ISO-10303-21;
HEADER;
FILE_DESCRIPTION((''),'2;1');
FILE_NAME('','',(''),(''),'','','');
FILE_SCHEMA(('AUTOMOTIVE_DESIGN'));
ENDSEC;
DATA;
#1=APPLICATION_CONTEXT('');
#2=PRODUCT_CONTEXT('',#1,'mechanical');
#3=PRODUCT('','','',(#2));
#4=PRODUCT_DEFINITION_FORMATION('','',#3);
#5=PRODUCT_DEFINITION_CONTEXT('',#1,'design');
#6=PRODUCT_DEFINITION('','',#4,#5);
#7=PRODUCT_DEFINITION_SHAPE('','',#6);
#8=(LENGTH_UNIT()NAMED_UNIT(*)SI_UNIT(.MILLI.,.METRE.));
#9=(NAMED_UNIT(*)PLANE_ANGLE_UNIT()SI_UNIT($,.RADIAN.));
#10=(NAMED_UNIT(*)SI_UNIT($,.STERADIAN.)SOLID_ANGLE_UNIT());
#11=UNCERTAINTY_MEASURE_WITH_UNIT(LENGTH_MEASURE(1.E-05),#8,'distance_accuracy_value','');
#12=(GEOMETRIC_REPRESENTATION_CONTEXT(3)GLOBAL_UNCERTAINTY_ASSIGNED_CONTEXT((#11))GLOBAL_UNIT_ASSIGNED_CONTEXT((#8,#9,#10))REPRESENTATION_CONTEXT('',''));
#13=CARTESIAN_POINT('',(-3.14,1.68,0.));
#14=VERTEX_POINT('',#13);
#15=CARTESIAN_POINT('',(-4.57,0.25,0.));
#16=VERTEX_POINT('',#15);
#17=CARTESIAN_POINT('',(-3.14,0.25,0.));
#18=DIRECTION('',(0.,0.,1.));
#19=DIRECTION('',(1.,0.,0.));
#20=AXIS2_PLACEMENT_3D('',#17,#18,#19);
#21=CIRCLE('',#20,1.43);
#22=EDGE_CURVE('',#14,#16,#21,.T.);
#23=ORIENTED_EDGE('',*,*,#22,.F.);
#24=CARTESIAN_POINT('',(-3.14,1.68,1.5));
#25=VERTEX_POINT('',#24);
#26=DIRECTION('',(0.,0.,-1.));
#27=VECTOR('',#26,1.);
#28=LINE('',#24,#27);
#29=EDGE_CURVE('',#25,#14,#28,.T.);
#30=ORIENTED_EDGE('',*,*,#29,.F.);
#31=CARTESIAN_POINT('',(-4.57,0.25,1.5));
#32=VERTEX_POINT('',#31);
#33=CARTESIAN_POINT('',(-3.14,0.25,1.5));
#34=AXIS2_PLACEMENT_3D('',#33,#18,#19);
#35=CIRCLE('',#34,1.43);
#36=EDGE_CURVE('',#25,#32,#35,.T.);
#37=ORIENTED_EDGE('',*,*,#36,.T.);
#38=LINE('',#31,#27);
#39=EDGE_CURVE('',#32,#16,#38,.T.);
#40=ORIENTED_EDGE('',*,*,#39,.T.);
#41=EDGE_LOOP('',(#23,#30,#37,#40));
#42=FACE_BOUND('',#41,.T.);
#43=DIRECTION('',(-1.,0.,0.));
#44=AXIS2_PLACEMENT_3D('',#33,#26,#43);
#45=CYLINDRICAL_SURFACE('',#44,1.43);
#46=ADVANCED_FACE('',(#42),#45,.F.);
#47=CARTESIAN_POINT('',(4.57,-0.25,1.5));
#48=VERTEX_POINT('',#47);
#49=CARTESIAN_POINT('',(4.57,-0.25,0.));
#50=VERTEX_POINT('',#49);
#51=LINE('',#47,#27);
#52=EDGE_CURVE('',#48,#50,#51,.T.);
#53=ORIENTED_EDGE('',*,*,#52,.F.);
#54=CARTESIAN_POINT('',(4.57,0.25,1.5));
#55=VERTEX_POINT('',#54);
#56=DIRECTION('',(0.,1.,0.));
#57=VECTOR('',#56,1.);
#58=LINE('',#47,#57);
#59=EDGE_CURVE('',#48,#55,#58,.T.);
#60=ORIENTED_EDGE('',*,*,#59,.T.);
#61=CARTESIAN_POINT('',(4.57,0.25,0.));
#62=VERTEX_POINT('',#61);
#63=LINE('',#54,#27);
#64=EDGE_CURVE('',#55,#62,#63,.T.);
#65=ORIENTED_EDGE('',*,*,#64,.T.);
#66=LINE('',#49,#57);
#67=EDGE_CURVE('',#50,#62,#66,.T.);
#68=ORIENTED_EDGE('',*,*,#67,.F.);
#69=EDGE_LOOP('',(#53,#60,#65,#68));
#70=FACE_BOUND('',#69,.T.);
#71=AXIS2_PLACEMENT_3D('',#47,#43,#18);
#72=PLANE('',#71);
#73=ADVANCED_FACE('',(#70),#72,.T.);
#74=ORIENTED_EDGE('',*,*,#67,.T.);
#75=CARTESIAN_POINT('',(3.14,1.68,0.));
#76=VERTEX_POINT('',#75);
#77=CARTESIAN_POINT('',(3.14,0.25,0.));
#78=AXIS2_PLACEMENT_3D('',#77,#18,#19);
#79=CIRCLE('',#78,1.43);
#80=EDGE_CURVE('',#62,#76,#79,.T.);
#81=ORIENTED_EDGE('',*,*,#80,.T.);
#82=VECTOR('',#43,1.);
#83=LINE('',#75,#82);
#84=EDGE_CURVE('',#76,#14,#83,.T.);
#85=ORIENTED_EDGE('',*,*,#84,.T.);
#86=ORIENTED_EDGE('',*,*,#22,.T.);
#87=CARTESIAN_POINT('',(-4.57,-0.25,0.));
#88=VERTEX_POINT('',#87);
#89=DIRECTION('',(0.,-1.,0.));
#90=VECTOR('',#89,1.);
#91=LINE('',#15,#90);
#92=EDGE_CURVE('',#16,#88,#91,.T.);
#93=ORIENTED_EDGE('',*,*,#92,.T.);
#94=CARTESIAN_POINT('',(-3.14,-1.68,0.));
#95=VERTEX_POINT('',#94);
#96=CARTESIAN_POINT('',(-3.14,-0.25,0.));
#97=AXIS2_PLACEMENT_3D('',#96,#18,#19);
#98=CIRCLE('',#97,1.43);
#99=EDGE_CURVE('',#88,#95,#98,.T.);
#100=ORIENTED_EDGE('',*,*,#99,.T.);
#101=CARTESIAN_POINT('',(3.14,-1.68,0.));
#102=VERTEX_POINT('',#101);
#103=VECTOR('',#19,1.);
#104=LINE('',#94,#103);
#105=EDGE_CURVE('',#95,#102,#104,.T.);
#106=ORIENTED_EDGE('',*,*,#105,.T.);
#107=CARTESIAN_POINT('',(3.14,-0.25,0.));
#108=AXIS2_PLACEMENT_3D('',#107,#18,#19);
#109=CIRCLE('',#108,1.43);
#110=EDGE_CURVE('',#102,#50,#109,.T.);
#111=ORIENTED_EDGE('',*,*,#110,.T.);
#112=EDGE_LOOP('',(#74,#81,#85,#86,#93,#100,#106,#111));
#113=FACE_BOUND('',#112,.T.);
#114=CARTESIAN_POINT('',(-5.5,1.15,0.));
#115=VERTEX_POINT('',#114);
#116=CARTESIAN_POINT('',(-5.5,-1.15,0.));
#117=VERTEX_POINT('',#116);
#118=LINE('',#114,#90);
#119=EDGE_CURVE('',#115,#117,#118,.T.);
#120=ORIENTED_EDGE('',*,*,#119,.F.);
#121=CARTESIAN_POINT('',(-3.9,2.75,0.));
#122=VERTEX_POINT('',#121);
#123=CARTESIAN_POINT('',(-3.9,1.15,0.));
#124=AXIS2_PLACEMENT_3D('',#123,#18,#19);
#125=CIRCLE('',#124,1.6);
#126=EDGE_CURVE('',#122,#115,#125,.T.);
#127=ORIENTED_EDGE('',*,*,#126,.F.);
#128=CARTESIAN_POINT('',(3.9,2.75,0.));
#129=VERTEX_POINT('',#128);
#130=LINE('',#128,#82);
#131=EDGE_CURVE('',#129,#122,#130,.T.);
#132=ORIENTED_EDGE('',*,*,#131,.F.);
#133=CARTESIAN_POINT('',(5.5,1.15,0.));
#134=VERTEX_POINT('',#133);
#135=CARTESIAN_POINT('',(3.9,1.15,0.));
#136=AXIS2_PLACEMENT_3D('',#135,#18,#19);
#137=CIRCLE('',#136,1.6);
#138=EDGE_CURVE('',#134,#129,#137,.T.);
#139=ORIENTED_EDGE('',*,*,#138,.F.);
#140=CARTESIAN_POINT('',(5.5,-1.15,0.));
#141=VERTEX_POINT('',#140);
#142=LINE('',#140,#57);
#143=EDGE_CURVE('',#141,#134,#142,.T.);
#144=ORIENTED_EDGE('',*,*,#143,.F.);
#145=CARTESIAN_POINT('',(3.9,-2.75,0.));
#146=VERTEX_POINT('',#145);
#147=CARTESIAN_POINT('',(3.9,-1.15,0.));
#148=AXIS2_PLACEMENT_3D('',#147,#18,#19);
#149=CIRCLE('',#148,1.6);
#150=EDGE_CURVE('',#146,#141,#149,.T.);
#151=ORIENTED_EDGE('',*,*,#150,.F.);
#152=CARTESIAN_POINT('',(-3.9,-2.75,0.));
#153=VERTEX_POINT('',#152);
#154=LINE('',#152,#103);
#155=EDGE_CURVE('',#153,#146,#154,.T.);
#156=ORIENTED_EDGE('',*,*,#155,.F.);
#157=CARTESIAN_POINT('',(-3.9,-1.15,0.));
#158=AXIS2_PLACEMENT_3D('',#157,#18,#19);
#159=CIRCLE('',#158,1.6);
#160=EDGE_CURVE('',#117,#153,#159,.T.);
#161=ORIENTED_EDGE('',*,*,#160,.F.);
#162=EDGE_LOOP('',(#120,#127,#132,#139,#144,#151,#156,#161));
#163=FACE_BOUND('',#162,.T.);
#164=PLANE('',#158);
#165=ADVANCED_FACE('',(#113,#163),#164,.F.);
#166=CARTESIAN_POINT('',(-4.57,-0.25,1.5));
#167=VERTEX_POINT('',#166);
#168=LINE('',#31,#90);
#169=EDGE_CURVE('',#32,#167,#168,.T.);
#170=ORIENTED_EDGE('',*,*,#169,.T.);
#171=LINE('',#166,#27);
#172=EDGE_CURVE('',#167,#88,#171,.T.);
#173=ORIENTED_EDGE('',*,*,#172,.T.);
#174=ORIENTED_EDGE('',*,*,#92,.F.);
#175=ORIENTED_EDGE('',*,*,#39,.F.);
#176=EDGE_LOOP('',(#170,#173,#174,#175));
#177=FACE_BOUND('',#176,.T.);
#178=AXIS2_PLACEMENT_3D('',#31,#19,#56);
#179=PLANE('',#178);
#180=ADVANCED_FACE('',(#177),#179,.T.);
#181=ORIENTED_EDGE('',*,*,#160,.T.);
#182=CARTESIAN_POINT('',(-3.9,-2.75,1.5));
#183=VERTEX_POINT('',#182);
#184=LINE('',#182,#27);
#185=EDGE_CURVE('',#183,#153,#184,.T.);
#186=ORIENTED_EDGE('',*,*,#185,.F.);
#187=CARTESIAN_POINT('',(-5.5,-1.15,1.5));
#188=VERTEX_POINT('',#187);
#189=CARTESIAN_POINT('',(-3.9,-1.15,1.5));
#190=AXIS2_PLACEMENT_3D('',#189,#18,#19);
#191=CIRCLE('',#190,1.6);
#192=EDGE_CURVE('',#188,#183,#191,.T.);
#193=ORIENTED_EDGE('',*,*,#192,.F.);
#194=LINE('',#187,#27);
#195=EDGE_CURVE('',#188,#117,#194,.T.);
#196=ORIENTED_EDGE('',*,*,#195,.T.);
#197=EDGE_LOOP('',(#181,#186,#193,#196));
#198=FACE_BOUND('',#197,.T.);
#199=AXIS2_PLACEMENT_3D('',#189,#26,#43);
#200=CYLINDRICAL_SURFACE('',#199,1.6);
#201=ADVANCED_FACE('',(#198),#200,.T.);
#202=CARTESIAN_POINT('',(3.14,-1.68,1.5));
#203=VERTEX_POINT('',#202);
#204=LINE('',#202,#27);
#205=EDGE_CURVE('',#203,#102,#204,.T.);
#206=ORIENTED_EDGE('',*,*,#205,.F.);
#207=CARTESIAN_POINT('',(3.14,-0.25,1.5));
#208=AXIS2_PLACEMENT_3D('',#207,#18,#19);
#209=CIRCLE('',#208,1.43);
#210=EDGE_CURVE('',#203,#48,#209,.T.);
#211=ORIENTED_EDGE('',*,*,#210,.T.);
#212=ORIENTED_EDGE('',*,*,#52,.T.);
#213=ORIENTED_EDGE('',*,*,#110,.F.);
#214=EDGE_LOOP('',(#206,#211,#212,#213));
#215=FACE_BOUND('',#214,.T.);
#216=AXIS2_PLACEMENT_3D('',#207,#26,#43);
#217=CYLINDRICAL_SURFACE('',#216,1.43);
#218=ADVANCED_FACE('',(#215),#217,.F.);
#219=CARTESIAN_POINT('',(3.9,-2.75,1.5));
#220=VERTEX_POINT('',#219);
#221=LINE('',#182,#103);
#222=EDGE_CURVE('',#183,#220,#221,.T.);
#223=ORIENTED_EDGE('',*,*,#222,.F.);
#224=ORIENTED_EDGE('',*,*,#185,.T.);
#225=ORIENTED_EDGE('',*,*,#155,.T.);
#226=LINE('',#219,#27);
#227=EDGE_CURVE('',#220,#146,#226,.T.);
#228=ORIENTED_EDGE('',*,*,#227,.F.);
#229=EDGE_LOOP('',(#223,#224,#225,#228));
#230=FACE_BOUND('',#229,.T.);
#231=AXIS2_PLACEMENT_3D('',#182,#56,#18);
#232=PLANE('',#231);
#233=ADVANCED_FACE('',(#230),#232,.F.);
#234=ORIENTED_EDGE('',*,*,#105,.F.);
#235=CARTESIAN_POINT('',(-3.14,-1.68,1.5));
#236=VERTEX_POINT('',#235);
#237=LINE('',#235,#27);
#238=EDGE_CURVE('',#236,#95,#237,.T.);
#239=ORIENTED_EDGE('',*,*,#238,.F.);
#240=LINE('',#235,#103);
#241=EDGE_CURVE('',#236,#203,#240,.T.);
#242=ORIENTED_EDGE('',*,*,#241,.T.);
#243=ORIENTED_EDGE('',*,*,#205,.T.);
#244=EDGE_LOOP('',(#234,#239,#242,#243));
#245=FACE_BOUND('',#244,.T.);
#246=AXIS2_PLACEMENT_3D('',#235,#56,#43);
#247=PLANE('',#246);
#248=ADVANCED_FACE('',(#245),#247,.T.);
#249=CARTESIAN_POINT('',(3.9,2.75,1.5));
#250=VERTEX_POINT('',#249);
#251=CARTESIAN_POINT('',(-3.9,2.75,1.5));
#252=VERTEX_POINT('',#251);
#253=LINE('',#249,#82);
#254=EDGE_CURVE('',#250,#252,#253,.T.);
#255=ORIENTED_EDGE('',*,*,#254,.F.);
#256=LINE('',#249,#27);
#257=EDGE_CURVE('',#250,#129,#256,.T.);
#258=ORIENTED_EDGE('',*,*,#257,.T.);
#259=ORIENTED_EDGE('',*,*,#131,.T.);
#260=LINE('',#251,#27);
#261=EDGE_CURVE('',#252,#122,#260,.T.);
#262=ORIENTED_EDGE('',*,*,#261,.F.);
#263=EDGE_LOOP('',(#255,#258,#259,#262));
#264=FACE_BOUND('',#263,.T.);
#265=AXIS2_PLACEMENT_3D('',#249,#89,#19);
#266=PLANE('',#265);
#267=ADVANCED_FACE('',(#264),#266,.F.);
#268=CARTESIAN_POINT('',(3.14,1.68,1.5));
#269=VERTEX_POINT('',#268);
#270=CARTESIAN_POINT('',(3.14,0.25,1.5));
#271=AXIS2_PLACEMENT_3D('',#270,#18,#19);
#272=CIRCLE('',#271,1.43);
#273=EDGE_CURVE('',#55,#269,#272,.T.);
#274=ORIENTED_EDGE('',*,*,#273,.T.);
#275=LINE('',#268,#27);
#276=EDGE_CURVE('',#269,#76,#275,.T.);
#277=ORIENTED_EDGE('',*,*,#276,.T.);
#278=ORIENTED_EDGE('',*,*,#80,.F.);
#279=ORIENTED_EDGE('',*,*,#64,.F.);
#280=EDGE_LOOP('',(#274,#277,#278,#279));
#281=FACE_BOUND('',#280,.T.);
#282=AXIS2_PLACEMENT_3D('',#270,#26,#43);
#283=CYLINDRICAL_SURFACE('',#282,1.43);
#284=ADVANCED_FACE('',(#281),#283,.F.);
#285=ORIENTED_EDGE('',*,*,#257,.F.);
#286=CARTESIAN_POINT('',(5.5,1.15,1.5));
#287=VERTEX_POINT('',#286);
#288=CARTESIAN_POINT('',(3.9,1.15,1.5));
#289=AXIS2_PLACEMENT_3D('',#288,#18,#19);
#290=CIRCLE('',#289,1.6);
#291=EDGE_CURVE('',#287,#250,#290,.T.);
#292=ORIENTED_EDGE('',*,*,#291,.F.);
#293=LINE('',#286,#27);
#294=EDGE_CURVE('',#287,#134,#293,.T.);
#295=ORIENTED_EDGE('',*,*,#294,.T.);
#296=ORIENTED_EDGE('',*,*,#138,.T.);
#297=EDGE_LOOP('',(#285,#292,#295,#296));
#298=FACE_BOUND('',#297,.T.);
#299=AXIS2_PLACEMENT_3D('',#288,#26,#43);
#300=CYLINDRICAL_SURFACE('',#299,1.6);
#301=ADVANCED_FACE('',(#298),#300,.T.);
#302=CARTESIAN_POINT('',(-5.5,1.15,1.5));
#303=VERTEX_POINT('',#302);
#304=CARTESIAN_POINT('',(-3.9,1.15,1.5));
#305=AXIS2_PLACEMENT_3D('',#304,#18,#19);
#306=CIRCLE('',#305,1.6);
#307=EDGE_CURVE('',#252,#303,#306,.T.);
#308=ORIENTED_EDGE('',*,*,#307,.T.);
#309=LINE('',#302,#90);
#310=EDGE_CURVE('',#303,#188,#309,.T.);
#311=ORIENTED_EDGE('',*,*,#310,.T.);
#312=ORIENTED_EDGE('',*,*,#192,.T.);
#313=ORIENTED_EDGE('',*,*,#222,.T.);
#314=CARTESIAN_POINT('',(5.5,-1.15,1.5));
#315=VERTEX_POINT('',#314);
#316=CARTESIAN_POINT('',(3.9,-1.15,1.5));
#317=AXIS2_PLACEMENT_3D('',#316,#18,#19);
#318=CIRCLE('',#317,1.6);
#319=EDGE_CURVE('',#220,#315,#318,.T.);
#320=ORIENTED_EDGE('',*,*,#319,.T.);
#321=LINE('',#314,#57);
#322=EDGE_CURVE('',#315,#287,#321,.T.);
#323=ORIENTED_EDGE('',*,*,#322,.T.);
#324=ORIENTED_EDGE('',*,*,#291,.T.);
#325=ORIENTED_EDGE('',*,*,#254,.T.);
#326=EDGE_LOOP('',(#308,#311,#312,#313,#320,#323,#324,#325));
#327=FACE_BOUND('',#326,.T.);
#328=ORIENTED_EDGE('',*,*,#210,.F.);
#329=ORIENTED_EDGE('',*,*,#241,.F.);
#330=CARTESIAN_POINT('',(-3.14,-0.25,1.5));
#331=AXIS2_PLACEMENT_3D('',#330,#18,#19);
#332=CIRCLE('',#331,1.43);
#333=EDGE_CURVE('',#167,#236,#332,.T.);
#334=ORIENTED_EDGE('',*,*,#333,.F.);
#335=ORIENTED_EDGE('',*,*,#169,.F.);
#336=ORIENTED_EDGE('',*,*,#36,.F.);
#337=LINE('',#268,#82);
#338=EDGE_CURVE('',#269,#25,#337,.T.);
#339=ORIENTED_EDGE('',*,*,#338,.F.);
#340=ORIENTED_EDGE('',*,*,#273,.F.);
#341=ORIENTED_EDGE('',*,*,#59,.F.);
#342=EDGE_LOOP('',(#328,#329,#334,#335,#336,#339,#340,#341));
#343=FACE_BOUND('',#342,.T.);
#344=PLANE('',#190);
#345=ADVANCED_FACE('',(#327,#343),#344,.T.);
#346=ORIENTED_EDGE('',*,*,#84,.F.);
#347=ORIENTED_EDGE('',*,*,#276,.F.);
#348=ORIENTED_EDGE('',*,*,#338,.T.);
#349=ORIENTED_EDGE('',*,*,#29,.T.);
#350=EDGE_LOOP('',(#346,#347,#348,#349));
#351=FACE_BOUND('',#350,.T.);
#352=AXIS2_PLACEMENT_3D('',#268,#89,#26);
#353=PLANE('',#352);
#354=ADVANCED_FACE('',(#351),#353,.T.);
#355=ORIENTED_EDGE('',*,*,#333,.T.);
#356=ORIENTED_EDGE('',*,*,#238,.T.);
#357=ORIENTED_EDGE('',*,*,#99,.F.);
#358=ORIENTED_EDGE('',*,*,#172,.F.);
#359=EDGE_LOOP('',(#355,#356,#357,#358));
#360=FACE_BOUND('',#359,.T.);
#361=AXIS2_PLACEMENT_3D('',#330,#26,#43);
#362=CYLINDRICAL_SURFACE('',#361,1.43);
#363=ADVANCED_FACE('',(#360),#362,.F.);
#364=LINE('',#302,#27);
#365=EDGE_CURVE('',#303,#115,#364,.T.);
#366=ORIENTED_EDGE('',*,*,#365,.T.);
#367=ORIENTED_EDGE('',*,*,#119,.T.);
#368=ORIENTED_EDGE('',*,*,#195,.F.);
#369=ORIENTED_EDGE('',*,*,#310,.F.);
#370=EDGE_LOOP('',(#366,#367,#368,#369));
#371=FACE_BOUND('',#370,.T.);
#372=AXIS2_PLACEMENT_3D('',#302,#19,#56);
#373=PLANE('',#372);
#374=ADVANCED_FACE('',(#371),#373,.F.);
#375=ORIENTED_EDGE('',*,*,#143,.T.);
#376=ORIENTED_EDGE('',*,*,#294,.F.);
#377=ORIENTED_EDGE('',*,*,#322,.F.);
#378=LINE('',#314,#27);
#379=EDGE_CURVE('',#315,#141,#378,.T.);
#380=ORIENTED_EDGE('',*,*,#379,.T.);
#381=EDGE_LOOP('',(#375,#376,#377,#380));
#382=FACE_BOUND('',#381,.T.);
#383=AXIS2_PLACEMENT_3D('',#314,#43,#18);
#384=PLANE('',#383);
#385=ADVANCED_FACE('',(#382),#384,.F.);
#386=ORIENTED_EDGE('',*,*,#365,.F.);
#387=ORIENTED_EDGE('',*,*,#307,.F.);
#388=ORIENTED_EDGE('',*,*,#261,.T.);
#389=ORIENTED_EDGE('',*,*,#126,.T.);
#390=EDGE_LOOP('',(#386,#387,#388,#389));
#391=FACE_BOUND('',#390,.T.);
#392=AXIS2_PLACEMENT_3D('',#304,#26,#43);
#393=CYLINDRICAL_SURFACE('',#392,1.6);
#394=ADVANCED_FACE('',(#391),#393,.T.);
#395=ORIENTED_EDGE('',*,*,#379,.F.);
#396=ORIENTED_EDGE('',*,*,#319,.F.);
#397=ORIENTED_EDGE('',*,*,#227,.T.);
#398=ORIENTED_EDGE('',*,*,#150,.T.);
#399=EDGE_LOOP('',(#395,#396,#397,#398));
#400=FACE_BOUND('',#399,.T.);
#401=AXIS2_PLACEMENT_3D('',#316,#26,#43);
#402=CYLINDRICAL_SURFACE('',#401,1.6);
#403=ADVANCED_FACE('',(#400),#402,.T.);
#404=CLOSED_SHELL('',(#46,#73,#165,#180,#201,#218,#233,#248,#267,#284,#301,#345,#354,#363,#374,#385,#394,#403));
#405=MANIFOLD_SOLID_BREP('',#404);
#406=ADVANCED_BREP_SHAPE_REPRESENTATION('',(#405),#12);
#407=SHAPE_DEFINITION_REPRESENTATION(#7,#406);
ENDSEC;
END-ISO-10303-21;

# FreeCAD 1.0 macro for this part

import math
import FreeCAD as App
import Part
import Sketcher

doc = App.newDocument("Part")
body = doc.addObject("PartDesign::Body", "Body")

sketch1 = body.newObject("Sketcher::SketchObject", "Sketch")
sketch1.AttachmentSupport = (doc.getObject("XY_Plane"), [""])
sketch1.MapMode = "FlatFace"
sketch1.addGeometry([
    Part.LineSegment(App.Vector(-3.9, -2.8, 0), App.Vector(3.9, -2.8, 0)),
    Part.ArcOfCircle(Part.Circle(App.Vector(3.9, -1.1, 0), App.Vector(0, 0, 1), 1.6), math.radians(-90), math.radians(0)),
    Part.LineSegment(App.Vector(5.5, -1.1, 0), App.Vector(5.5, 1.1, 0)),
    Part.ArcOfCircle(Part.Circle(App.Vector(3.9, 1.1, 0), App.Vector(0, 0, 1), 1.6), math.radians(0), math.radians(90)),
    Part.LineSegment(App.Vector(3.9, 2.8, 0), App.Vector(-3.9, 2.8, 0)),
    Part.ArcOfCircle(Part.Circle(App.Vector(-3.9, 1.1, 0), App.Vector(0, 0, 1), 1.6), math.radians(90), math.radians(180)),
    Part.LineSegment(App.Vector(-5.5, 1.1, 0), App.Vector(-5.5, -1.1, 0)),
    Part.ArcOfCircle(Part.Circle(App.Vector(-3.9, -1.1, 0), App.Vector(0, 0, 1), 1.6), math.radians(180), math.radians(270)),
    Part.LineSegment(App.Vector(4.6, 0.2, 0), App.Vector(4.6, -0.2, 0)),
    Part.ArcOfCircle(Part.Circle(App.Vector(3.1, -0.2, 0), App.Vector(0, 0, 1), 1.4), math.radians(-90), math.radians(0)),
    Part.LineSegment(App.Vector(3.1, -1.7, 0), App.Vector(-3.1, -1.7, 0)),
    Part.ArcOfCircle(Part.Circle(App.Vector(-3.1, -0.2, 0), App.Vector(0, 0, 1), 1.4), math.radians(180), math.radians(270)),
    Part.LineSegment(App.Vector(-4.6, -0.2, 0), App.Vector(-4.6, 0.2, 0)),
    Part.ArcOfCircle(Part.Circle(App.Vector(-3.1, 0.2, 0), App.Vector(0, 0, 1), 1.4), math.radians(90), math.radians(180)),
    Part.LineSegment(App.Vector(-3.1, 1.7, 0), App.Vector(3.1, 1.7, 0)),
    Part.ArcOfCircle(Part.Circle(App.Vector(3.1, 0.2, 0), App.Vector(0, 0, 1), 1.4), math.radians(0), math.radians(90)),
], False)
sketch1.addConstraint([
    Sketcher.Constraint("Tangent", 0, 2, 1, 1),
    Sketcher.Constraint("Tangent", 1, 2, 2, 1),
    Sketcher.Constraint("Tangent", 2, 2, 3, 1),
    Sketcher.Constraint("Tangent", 3, 2, 4, 1),
    Sketcher.Constraint("Tangent", 4, 2, 5, 1),
    Sketcher.Constraint("Tangent", 5, 2, 6, 1),
    Sketcher.Constraint("Tangent", 6, 2, 7, 1),
    Sketcher.Constraint("Tangent", 7, 2, 0, 1),
    Sketcher.Constraint("Tangent", 8, 2, 9, 2),
    Sketcher.Constraint("Tangent", 9, 1, 10, 1),
    Sketcher.Constraint("Tangent", 10, 2, 11, 2),
    Sketcher.Constraint("Tangent", 11, 1, 12, 1),
    Sketcher.Constraint("Tangent", 12, 2, 13, 2),
    Sketcher.Constraint("Tangent", 13, 1, 14, 1),
    Sketcher.Constraint("Tangent", 14, 2, 15, 2),
    Sketcher.Constraint("Tangent", 15, 1, 8, 1),
    Sketcher.Constraint("Horizontal", 0),
    Sketcher.Constraint("Vertical", 2),
    Sketcher.Constraint("Horizontal", 4),
    Sketcher.Constraint("Vertical", 6),
    Sketcher.Constraint("Vertical", 8),
    Sketcher.Constraint("Horizontal", 10),
    Sketcher.Constraint("Vertical", 12),
    Sketcher.Constraint("Horizontal", 14),
    Sketcher.Constraint("Equal", 1, 3),
    Sketcher.Constraint("Equal", 3, 5),
    Sketcher.Constraint("Equal", 5, 7),
    Sketcher.Constraint("Equal", 9, 11),
    Sketcher.Constraint("Equal", 11, 13),
    Sketcher.Constraint("Equal", 13, 15),
    Sketcher.Constraint("Symmetric", 1, 3, 5, 3, -1, 1),
    Sketcher.Constraint("Symmetric", 9, 3, 13, 3, -1, 1),
    Sketcher.Constraint("Radius", 1, 1.6),
    Sketcher.Constraint("Radius", 9, 1.43),
    Sketcher.Constraint("DistanceX", 0, 1, 0, 2, 7.8),
    Sketcher.Constraint("DistanceY", 2, 1, 2, 2, 2.3),
    Sketcher.Constraint("DistanceY", 8, 2, 8, 1, 0.5),
    Sketcher.Constraint("DistanceX", 10, 2, 10, 1, 6.28),
])
pad1 = body.newObject("PartDesign::Pad", "Pad")
pad1.Profile = sketch1
pad1.Length = 1.5

doc.recompute()
